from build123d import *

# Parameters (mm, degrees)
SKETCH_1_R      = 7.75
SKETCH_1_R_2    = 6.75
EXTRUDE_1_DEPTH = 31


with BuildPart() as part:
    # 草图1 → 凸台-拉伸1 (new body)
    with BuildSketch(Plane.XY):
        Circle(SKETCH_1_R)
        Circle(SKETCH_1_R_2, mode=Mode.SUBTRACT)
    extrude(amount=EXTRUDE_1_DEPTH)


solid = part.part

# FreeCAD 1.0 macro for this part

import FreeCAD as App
import Part
import Sketcher

V = App.Vector

doc = App.newDocument("Part")
body = doc.addObject("PartDesign::Body", "Body")

sketch1 = body.newObject("Sketcher::SketchObject", "Sketch")
sketch1.AttachmentSupport = (doc.getObject("XY_Plane"), [""])
sketch1.MapMode = "FlatFace"
sketch1.addGeometry([
    Part.Circle(V(0, 0, 0), V(0, 0, 1), 8),
    Part.Circle(V(0, 0, 0), V(0, 0, 1), 7),
], False)
sketch1.addConstraint([
    Sketcher.Constraint("Coincident", 0, 3, -1, 1),
    Sketcher.Constraint("Coincident", 1, 3, -1, 1),
    Sketcher.Constraint("Diameter", 0, 15.5),
    Sketcher.Constraint("Diameter", 1, 13.5),
])
pad1 = body.newObject("PartDesign::Pad", "Pad")
pad1.Profile = sketch1
pad1.Length = 31

doc.recompute()
